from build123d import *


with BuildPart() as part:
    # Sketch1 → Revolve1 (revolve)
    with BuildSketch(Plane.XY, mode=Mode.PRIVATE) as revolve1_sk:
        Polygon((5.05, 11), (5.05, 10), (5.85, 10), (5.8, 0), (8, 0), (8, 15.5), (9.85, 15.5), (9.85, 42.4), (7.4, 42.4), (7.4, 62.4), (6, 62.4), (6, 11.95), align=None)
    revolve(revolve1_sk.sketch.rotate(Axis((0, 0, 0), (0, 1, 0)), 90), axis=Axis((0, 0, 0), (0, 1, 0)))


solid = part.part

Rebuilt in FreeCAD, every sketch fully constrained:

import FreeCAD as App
import Part
import Sketcher
from FreeCAD import Vector
Q = App.Units.Quantity

doc = App.newDocument("Part")
params = doc.addObject("Spreadsheet::Sheet", "Params")
for row, (alias, value) in enumerate([
    ("sketch1_height", "1 mm"),
    ("sketch1_height2", "20 mm"),
    ("sketch1_width", "0.8 mm"),
    ("sketch1_width2", "2.2 mm"),
    ("sketch1_width3", "1.4 mm"),
    ("revolution_angle", "360 deg"),
], start=1):
    params.set(f"A{row}", alias)
    params.set(f"B{row}", "=" + value)
    params.setAlias(f"B{row}", alias)

body = doc.addObject("PartDesign::Body", "Body")

# Sketch on XY plane
sketch1 = doc.addObject("Sketcher::SketchObject", "Sketch")
body.addObject(sketch1)
sketch1.AttachmentSupport = (doc.XY_Plane, [""])
sketch1.MapMode = "FlatFace"
sketch1.addGeometry(Part.LineSegment(Vector(5.05, 11, 0), Vector(5.05, 10, 0)), False)
sketch1.addGeometry(Part.LineSegment(Vector(5.05, 10, 0), Vector(5.85, 10, 0)), False)
sketch1.addGeometry(Part.LineSegment(Vector(5.85, 10, 0), Vector(5.8, 0, 0)), False)
sketch1.addGeometry(Part.LineSegment(Vector(5.8, 0, 0), Vector(8, 0, 0)), False)
sketch1.addGeometry(Part.LineSegment(Vector(8, 0, 0), Vector(8, 15.5, 0)), False)
sketch1.addGeometry(Part.LineSegment(Vector(8, 15.5, 0), Vector(9.85, 15.5, 0)), False)
sketch1.addGeometry(Part.LineSegment(Vector(9.85, 15.5, 0), Vector(9.85, 42.4, 0)), False)
sketch1.addGeometry(Part.LineSegment(Vector(9.85, 42.4, 0), Vector(7.4, 42.4, 0)), False)
sketch1.addGeometry(Part.LineSegment(Vector(7.4, 42.4, 0), Vector(7.4, 62.4, 0)), False)
sketch1.addGeometry(Part.LineSegment(Vector(7.4, 62.4, 0), Vector(6, 62.4, 0)), False)
sketch1.addGeometry(Part.LineSegment(Vector(6, 62.4, 0), Vector(6, 11.95, 0)), False)
sketch1.addGeometry(Part.LineSegment(Vector(6, 11.95, 0), Vector(5.05, 11, 0)), False)
sketch1.addConstraint(Sketcher.Constraint("Coincident", 0, 2, 1, 1))
sketch1.addConstraint(Sketcher.Constraint("Coincident", 1, 2, 2, 1))
sketch1.addConstraint(Sketcher.Constraint("Coincident", 2, 2, 3, 1))
sketch1.addConstraint(Sketcher.Constraint("Coincident", 3, 2, 4, 1))
sketch1.addConstraint(Sketcher.Constraint("Coincident", 4, 2, 5, 1))
sketch1.addConstraint(Sketcher.Constraint("Coincident", 5, 2, 6, 1))
sketch1.addConstraint(Sketcher.Constraint("Coincident", 6, 2, 7, 1))
sketch1.addConstraint(Sketcher.Constraint("Coincident", 7, 2, 8, 1))
sketch1.addConstraint(Sketcher.Constraint("Coincident", 8, 2, 9, 1))
sketch1.addConstraint(Sketcher.Constraint("Coincident", 9, 2, 10, 1))
sketch1.addConstraint(Sketcher.Constraint("Coincident", 10, 2, 11, 1))
sketch1.addConstraint(Sketcher.Constraint("Coincident", 11, 2, 0, 1))
sketch1.addConstraint(Sketcher.Constraint("Vertical", 0))
sketch1.addConstraint(Sketcher.Constraint("Horizontal", 1))
sketch1.addConstraint(Sketcher.Constraint("Horizontal", 3))
sketch1.addConstraint(Sketcher.Constraint("Vertical", 4))
sketch1.addConstraint(Sketcher.Constraint("Horizontal", 5))
sketch1.addConstraint(Sketcher.Constraint("Vertical", 6))
sketch1.addConstraint(Sketcher.Constraint("Horizontal", 7))
sketch1.addConstraint(Sketcher.Constraint("Vertical", 8))
sketch1.addConstraint(Sketcher.Constraint("Horizontal", 9))
sketch1.addConstraint(Sketcher.Constraint("Vertical", 10))
sketch1.addConstraint(Sketcher.Constraint("PointOnObject", 2, 2, -1))
sketch1.addConstraint(Sketcher.Constraint("DistanceY", 0, 2, 0, 1, 1.0))
sketch1.addConstraint(Sketcher.Constraint("DistanceY", 8, 1, 8, 2, 20.0))
sketch1.addConstraint(Sketcher.Constraint("Angle", 11, Q("-135 deg")))
sketch1.addConstraint(Sketcher.Constraint("DistanceX", 1, 1, 1, 2, 0.8))
sketch1.addConstraint(Sketcher.Constraint("DistanceX", 3, 1, 3, 2, 2.2))
sketch1.addConstraint(Sketcher.Constraint("DistanceX", 9, 2, 9, 1, 1.4))
sketch1.addConstraint(Sketcher.Constraint("DistanceY", 4, 1, 4, 2, 15.5))
sketch1.addConstraint(Sketcher.Constraint("DistanceY", 6, 1, 6, 2, 26.9))
sketch1.addConstraint(Sketcher.Constraint("DistanceY", -1, 1, 0, 2, 10.0))
sketch1.addConstraint(Sketcher.Constraint("DistanceX", -1, 1, 3, 2, 8.0))
sketch1.addConstraint(Sketcher.Constraint("DistanceX", -1, 1, 9, 2, 6.0))
sketch1.addConstraint(Sketcher.Constraint("DistanceX", 1, 2, 5, 2, 4.0))
sketch1.addConstraint(Sketcher.Constraint("DistanceX", 5, 1, 5, 2, 1.85))
sketch1.setExpression("Constraints[23]", "Params.sketch1_height")
sketch1.setExpression("Constraints[24]", "Params.sketch1_height2")
sketch1.setExpression("Constraints[26]", "Params.sketch1_width")
sketch1.setExpression("Constraints[27]", "Params.sketch1_width2")
sketch1.setExpression("Constraints[28]", "Params.sketch1_width3")
revolution = doc.addObject("PartDesign::Revolution", "Revolution")
body.addObject(revolution)
revolution.Profile = sketch1
revolution.ReferenceAxis = (sketch1, ["V_Axis"])
revolution.setExpression("Angle", "Params.revolution_angle")

doc.recompute()
